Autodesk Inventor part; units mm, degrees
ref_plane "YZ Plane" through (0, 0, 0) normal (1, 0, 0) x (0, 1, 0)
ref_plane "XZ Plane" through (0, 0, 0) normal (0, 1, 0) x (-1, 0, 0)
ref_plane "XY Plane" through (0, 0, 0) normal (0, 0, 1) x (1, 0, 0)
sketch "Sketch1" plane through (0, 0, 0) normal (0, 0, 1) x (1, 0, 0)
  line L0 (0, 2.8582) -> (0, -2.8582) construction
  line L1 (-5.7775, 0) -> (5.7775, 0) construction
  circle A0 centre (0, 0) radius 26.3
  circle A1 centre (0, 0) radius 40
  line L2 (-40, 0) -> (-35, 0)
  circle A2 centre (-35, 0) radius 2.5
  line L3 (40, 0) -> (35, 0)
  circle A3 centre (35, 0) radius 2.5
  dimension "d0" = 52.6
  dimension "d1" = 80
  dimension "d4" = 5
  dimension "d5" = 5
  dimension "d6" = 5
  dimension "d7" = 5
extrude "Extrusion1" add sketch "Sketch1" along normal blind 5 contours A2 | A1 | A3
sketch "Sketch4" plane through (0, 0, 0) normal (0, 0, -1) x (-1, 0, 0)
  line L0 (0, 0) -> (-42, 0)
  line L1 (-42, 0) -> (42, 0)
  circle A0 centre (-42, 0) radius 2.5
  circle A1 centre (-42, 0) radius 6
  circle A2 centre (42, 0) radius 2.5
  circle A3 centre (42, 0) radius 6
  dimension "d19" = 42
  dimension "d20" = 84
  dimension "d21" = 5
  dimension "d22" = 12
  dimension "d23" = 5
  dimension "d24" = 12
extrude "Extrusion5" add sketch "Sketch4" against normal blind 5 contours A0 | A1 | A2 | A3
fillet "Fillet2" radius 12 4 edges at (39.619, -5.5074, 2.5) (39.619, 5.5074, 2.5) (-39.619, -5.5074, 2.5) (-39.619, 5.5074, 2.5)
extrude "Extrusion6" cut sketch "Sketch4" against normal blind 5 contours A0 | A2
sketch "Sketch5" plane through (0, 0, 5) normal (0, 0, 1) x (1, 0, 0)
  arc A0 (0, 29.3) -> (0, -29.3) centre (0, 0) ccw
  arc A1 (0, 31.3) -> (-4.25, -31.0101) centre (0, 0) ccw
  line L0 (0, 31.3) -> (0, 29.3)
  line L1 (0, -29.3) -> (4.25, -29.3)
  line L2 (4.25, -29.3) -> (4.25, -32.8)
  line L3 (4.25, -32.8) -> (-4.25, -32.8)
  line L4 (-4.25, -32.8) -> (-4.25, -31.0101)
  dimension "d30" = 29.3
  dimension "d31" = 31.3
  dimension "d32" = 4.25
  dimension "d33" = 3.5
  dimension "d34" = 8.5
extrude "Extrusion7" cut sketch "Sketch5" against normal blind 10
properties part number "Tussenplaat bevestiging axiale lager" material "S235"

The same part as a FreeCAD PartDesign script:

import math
import FreeCAD as App
import Part
import Sketcher


def edges_at(feature, points):
    """Names of the edges that pass closest to the given points."""
    edges = feature.Shape.Edges
    near = lambda p: min(range(len(edges)), key=lambda i: edges[i].distToShape(Part.Vertex(*p))[0])
    return sorted({f"Edge{near(p) + 1}" for p in points})

doc = App.newDocument("Part")
body = doc.addObject("PartDesign::Body", "Body")

sketch1 = body.newObject("Sketcher::SketchObject", "Sketch")
sketch1.AttachmentSupport = (doc.getObject("XY_Plane"), [""])
sketch1.MapMode = "FlatFace"
sketch1.addGeometry([
    Part.ArcOfCircle(Part.Circle(App.Vector(0, 0, 0), App.Vector(0, 0, 1), 40), math.radians(180), math.radians(360)),
    Part.ArcOfCircle(Part.Circle(App.Vector(0, 0, 0), App.Vector(0, 0, 1), 40), math.radians(0), math.radians(180)),
    Part.Circle(App.Vector(0, 0, 0), App.Vector(0, 0, 1), 26),
], False)
sketch1.addConstraint([
    Sketcher.Constraint("Tangent", 0, 1, 1, 2),
    Sketcher.Constraint("Coincident", 1, 1, 0, 2),
    Sketcher.Constraint("Coincident", 0, 3, -1, 1),
    Sketcher.Constraint("Coincident", 2, 3, -1, 1),
    Sketcher.Constraint("PointOnObject", 0, 1, -1),
    Sketcher.Constraint("PointOnObject", 1, 1, -1),
    Sketcher.Constraint("Radius", 0, 40.0),
    Sketcher.Constraint("Diameter", 2, 52.6),
])
pad1 = body.newObject("PartDesign::Pad", "Pad")
pad1.Profile = sketch1
pad1.Length = 5

sketch2 = body.newObject("Sketcher::SketchObject", "Sketch001")
sketch2.AttachmentSupport = (doc.getObject("XY_Plane"), [""])
sketch2.MapMode = "FlatFace"
sketch2.addGeometry([
    Part.Circle(App.Vector(42, 0, 0), App.Vector(0, 0, 1), 6),
    Part.Circle(App.Vector(-42, 0, 0), App.Vector(0, 0, 1), 6),
], False)
sketch2.addConstraint([
    Sketcher.Constraint("Equal", 0, 1),
    Sketcher.Constraint("Symmetric", 0, 3, 1, 3, -1, 1),
    Sketcher.Constraint("PointOnObject", 0, 3, -1),
    Sketcher.Constraint("Diameter", 0, 12.0),
    Sketcher.Constraint("DistanceX", -1, 1, 0, 3, 42.0),
])
pad2 = body.newObject("PartDesign::Pad", "Pad001")
pad2.Profile = sketch2
pad2.Length = 5
doc.recompute()

fillet = body.newObject("PartDesign::Fillet", "Fillet")
fillet.Base = (pad2, edges_at(pad2, [
    (39.619, -5.507, 2.5),
    (39.619, 5.507, 2.5),
    (-39.619, -5.507, 2.5),
    (-39.619, 5.507, 2.5),
]))
fillet.Radius = 12

sketch3 = body.newObject("Sketcher::SketchObject", "Sketch002")
sketch3.AttachmentSupport = (doc.getObject("XY_Plane"), [""])
sketch3.MapMode = "FlatFace"
sketch3.addGeometry([
    Part.Circle(App.Vector(42, 0, 0), App.Vector(0, 0, 1), 2.5),
    Part.Circle(App.Vector(-42, 0, 0), App.Vector(0, 0, 1), 2.5),
], False)
sketch3.addConstraint([
    Sketcher.Constraint("Equal", 0, 1),
    Sketcher.Constraint("Symmetric", 0, 3, 1, 3, -1, 1),
    Sketcher.Constraint("PointOnObject", 0, 3, -1),
    Sketcher.Constraint("Diameter", 0, 5.0),
    Sketcher.Constraint("DistanceX", -1, 1, 0, 3, 42.0),
])
pocket1 = body.newObject("PartDesign::Pocket", "Pocket")
pocket1.Profile = sketch3
pocket1.Length = 5
pocket1.Reversed = True

sketch4 = body.newObject("Sketcher::SketchObject", "Sketch003")
sketch4.AttachmentSupport = (doc.getObject("XY_Plane"), [""])
sketch4.MapMode = "FlatFace"
sketch4.AttachmentOffset = App.Placement(App.Vector(0, 0, 5), App.Rotation())
sketch4.addGeometry([
    Part.ArcOfCircle(Part.Circle(App.Vector(0, 0, 0), App.Vector(0, 0, 1), 29.3), math.radians(90), math.radians(270)),
    Part.LineSegment(App.Vector(0, 29.3, 0), App.Vector(0, 31.3, 0)),
    Part.ArcOfCircle(Part.Circle(App.Vector(0, 0, 0), App.Vector(0, 0, 1), 31.3), math.radians(90), math.radians(262)),
    Part.LineSegment(App.Vector(-4.2, -31, 0), App.Vector(-4.2, -32.8, 0)),
    Part.LineSegment(App.Vector(-4.2, -32.8, 0), App.Vector(4.2, -32.8, 0)),
    Part.LineSegment(App.Vector(4.2, -32.8, 0), App.Vector(4.2, -29.3, 0)),
    Part.LineSegment(App.Vector(4.2, -29.3, 0), App.Vector(0, -29.3, 0)),
], False)
sketch4.addConstraint([
    Sketcher.Constraint("Coincident", 0, 1, 1, 1),
    Sketcher.Constraint("Coincident", 1, 2, 2, 1),
    Sketcher.Constraint("Coincident", 2, 2, 3, 1),
    Sketcher.Constraint("Coincident", 3, 2, 4, 1),
    Sketcher.Constraint("Coincident", 4, 2, 5, 1),
    Sketcher.Constraint("Coincident", 5, 2, 6, 1),
    Sketcher.Constraint("Tangent", 6, 2, 0, 2),
    Sketcher.Constraint("Vertical", 1),
    Sketcher.Constraint("Vertical", 3),
    Sketcher.Constraint("Horizontal", 4),
    Sketcher.Constraint("Vertical", 5),
    Sketcher.Constraint("Horizontal", 6),
    Sketcher.Constraint("Coincident", 0, 3, -1, 1),
    Sketcher.Constraint("Coincident", 2, 3, -1, 1),
    Sketcher.Constraint("PointOnObject", 0, 1, -2),
    Sketcher.Constraint("Radius", 0, 29.3),
    Sketcher.Constraint("Radius", 2, 31.3),
    Sketcher.Constraint("DistanceX", 4, 1, 4, 2, 8.5),
    Sketcher.Constraint("DistanceY", 5, 1, 5, 2, 3.5),
    Sketcher.Constraint("DistanceX", 6, 2, 6, 1, 4.25),
])
pocket2 = body.newObject("PartDesign::Pocket", "Pocket001")
pocket2.Profile = sketch4
pocket2.Length = 10

doc.recompute()
